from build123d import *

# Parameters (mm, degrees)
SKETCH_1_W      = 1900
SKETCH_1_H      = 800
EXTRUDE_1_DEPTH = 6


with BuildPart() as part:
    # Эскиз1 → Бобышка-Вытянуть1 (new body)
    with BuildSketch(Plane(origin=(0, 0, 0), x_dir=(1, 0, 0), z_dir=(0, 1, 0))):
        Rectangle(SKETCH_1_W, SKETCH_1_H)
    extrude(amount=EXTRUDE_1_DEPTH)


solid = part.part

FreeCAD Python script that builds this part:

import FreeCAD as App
import Part
import Sketcher
from FreeCAD import Vector

doc = App.newDocument("Part")
body = doc.addObject("PartDesign::Body", "Body")

sketch1 = body.newObject("Sketcher::SketchObject", "Sketch")
sketch1.AttachmentSupport = (doc.getObject("XZ_Plane"), [""])
sketch1.MapMode = "FlatFace"
sketch1.addGeometry(Part.LineSegment(Vector(-950, -400, 0), Vector(-950, 400, 0)), False)
sketch1.addGeometry(Part.LineSegment(Vector(-950, 400, 0), Vector(950, 400, 0)), False)
sketch1.addGeometry(Part.LineSegment(Vector(950, 400, 0), Vector(950, -400, 0)), False)
sketch1.addGeometry(Part.LineSegment(Vector(950, -400, 0), Vector(-950, -400, 0)), False)
sketch1.addConstraint(Sketcher.Constraint("Coincident", 0, 2, 1, 1))
sketch1.addConstraint(Sketcher.Constraint("Coincident", 1, 2, 2, 1))
sketch1.addConstraint(Sketcher.Constraint("Coincident", 2, 2, 3, 1))
sketch1.addConstraint(Sketcher.Constraint("Coincident", 3, 2, 0, 1))
sketch1.addConstraint(Sketcher.Constraint("Vertical", 0))
sketch1.addConstraint(Sketcher.Constraint("Horizontal", 1))
sketch1.addConstraint(Sketcher.Constraint("Vertical", 2))
sketch1.addConstraint(Sketcher.Constraint("Horizontal", 3))
sketch1.addConstraint(Sketcher.Constraint("Symmetric", 0, 2, 2, 2, -1, 1))
sketch1.addConstraint(Sketcher.Constraint("DistanceX", 1, 1, 1, 2, 1900.0))
sketch1.addConstraint(Sketcher.Constraint("DistanceY", 0, 1, 0, 2, 800.0))
pad1 = body.newObject("PartDesign::Pad", "Pad")
pad1.Profile = sketch1
pad1.Length = 6
pad1.Reversed = True

doc.recompute()
